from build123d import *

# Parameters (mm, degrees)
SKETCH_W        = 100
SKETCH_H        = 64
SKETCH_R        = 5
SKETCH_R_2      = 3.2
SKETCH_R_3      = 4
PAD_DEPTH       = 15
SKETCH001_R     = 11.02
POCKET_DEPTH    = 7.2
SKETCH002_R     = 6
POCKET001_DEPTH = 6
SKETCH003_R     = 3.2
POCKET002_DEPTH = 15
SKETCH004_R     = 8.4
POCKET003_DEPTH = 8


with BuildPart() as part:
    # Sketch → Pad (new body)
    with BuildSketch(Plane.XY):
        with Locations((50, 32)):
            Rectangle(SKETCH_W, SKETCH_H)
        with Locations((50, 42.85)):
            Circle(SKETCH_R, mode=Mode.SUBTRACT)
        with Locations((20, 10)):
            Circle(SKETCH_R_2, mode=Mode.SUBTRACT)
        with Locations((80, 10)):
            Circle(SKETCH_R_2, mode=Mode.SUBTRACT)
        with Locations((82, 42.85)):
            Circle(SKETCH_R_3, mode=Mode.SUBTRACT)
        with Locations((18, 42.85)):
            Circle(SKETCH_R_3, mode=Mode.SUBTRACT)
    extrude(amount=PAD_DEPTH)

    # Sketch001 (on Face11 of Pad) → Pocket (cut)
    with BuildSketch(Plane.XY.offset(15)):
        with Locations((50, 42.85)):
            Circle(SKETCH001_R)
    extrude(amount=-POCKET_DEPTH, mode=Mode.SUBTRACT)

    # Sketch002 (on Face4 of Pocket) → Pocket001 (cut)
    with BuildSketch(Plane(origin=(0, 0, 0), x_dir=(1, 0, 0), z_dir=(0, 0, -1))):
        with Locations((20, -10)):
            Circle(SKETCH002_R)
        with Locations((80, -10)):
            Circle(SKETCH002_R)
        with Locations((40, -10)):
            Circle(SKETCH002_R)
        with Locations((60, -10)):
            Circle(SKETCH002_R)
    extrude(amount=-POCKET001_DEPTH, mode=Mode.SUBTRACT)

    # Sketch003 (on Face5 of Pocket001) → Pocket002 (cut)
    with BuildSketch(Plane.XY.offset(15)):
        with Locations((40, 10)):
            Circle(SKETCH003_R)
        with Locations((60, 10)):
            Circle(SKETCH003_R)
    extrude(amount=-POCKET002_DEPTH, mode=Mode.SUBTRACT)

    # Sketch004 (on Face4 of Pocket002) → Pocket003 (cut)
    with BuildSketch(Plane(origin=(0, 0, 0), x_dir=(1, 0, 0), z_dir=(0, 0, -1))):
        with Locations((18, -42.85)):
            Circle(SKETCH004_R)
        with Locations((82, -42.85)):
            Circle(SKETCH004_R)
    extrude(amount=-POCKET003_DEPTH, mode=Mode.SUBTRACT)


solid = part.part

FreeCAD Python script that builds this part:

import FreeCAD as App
import Part
import Sketcher

V = App.Vector


def add_polygon(sketch, points):
    """Adds a closed chain of lines whose ends are joined by coincident constraints."""
    first, n = sketch.GeometryCount, len(points)
    for a, b in zip(points, points[1:] + points[:1]):
        sketch.addGeometry(Part.LineSegment(App.Vector(*a, 0), App.Vector(*b, 0)), False)
    for i in range(n):
        sketch.addConstraint(Sketcher.Constraint("Coincident", first + i, 2, first + (i + 1) % n, 1))

doc = App.newDocument("Part")
body = doc.addObject("PartDesign::Body", "Body")

# Sketch on XY plane
sketch1 = body.newObject("Sketcher::SketchObject", "Sketch")
sketch1.AttachmentSupport = (doc.getObject("XY_Plane"), [""])
sketch1.MapMode = "FlatFace"
add_polygon(sketch1, [(0, 64), (0, 0), (100, 0), (100, 64)])  # lines 0-3
sketch1.addGeometry(Part.Circle(V(20, 10, 0), V(0, 0, 1), 3.2), False)  # 4
sketch1.addGeometry(Part.Circle(V(80, 10, 0), V(0, 0, 1), 3.2), False)  # 5
sketch1.addGeometry(Part.Circle(V(18, 42.9, 0), V(0, 0, 1), 4), False)  # 6
sketch1.addGeometry(Part.Circle(V(50, 42.9, 0), V(0, 0, 1), 5), False)  # 7
sketch1.addGeometry(Part.Circle(V(82, 42.9, 0), V(0, 0, 1), 4), False)  # 8
sketch1.addConstraint([
    Sketcher.Constraint("Vertical", 0),
    Sketcher.Constraint("Horizontal", 1),
    Sketcher.Constraint("Vertical", 2),
    Sketcher.Constraint("Horizontal", 3),
    Sketcher.Constraint("Coincident", 0, 2, -1, 1),
    Sketcher.Constraint("Equal", 4, 5),
    Sketcher.Constraint("Equal", 6, 8),
    Sketcher.Constraint("Horizontal", 4, 3, 5, 3),
    Sketcher.Constraint("Horizontal", 6, 3, 7, 3),
    Sketcher.Constraint("Horizontal", 7, 3, 8, 3),
    Sketcher.Constraint("Diameter", 6, 8.0),
    Sketcher.Constraint("Diameter", 7, 10.0),
    Sketcher.Constraint("Diameter", 4, 6.4),
    Sketcher.Constraint("DistanceX", 1, 1, 1, 2, 100.0),
    Sketcher.Constraint("DistanceY", 0, 2, 0, 1, 64.0),
    Sketcher.Constraint("DistanceX", -1, 1, 4, 3, 20.0),
    Sketcher.Constraint("DistanceY", -1, 1, 4, 3, 10.0),
    Sketcher.Constraint("DistanceX", -1, 1, 5, 3, 80.0),
    Sketcher.Constraint("DistanceX", -1, 1, 6, 3, 18.0),
    Sketcher.Constraint("DistanceX", -1, 1, 7, 3, 50.0),
    Sketcher.Constraint("DistanceX", -1, 1, 8, 3, 82.0),
    Sketcher.Constraint("DistanceY", -1, 1, 6, 3, 42.85),
])
pad1 = body.newObject("PartDesign::Pad", "Pad")
pad1.Profile = sketch1
pad1.Length = 15

# Sketch on XY plane
sketch2 = body.newObject("Sketcher::SketchObject", "Sketch001")
sketch2.AttachmentSupport = (doc.getObject("XY_Plane"), [""])
sketch2.MapMode = "FlatFace"
sketch2.AttachmentOffset = App.Placement(V(0, 0, 15), App.Rotation())
sketch2.addGeometry(Part.Circle(V(50, 43, 0), V(0, 0, 1), 11), False)
sketch2.addConstraint([
    Sketcher.Constraint("Diameter", 0, 22.04),
    Sketcher.Constraint("DistanceX", -1, 1, 0, 3, 50.0),
    Sketcher.Constraint("DistanceY", -1, 1, 0, 3, 42.85),
])
pocket1 = body.newObject("PartDesign::Pocket", "Pocket")
pocket1.Profile = sketch2
pocket1.Length = 7.2

# Sketch on XY plane
sketch3 = body.newObject("Sketcher::SketchObject", "Sketch002")
sketch3.AttachmentSupport = (doc.getObject("XY_Plane"), [""])
sketch3.MapMode = "FlatFace"
sketch3.addGeometry([
    Part.Circle(V(20, 10, 0), V(0, 0, 1), 6),
    Part.Circle(V(80, 10, 0), V(0, 0, 1), 6),
    Part.Circle(V(40, 10, 0), V(0, 0, 1), 6),
    Part.Circle(V(60, 10, 0), V(0, 0, 1), 6),
], False)
sketch3.addConstraint([
    Sketcher.Constraint("Equal", 0, 1),
    Sketcher.Constraint("Equal", 1, 2),
    Sketcher.Constraint("Equal", 2, 3),
    Sketcher.Constraint("Horizontal", 0, 3, 1, 3),
    Sketcher.Constraint("Horizontal", 1, 3, 2, 3),
    Sketcher.Constraint("Horizontal", 2, 3, 3, 3),
    Sketcher.Constraint("Diameter", 0, 12.0),
    Sketcher.Constraint("DistanceX", -1, 1, 0, 3, 20.0),
    Sketcher.Constraint("DistanceY", -1, 1, 0, 3, 10.0),
    Sketcher.Constraint("DistanceX", -1, 1, 1, 3, 80.0),
    Sketcher.Constraint("DistanceX", -1, 1, 2, 3, 40.0),
    Sketcher.Constraint("DistanceX", -1, 1, 3, 3, 60.0),
])
pocket2 = body.newObject("PartDesign::Pocket", "Pocket001")
pocket2.Profile = sketch3
pocket2.Length = 6
pocket2.Reversed = True

# Sketch on XY plane
sketch4 = body.newObject("Sketcher::SketchObject", "Sketch003")
sketch4.AttachmentSupport = (doc.getObject("XY_Plane"), [""])
sketch4.MapMode = "FlatFace"
sketch4.AttachmentOffset = App.Placement(V(0, 0, 15), App.Rotation())
sketch4.addGeometry([
    Part.Circle(V(40, 10, 0), V(0, 0, 1), 3.2),
    Part.Circle(V(60, 10, 0), V(0, 0, 1), 3.2),
], False)
sketch4.addConstraint([
    Sketcher.Constraint("Equal", 0, 1),
    Sketcher.Constraint("Horizontal", 0, 3, 1, 3),
    Sketcher.Constraint("Diameter", 0, 6.4),
    Sketcher.Constraint("DistanceX", -1, 1, 0, 3, 40.0),
    Sketcher.Constraint("DistanceY", -1, 1, 0, 3, 10.0),
    Sketcher.Constraint("DistanceX", -1, 1, 1, 3, 60.0),
])
pocket3 = body.newObject("PartDesign::Pocket", "Pocket002")
pocket3.Profile = sketch4
pocket3.Length = 15

# Sketch on XY plane
sketch5 = body.newObject("Sketcher::SketchObject", "Sketch004")
sketch5.AttachmentSupport = (doc.getObject("XY_Plane"), [""])
sketch5.MapMode = "FlatFace"
sketch5.addGeometry([
    Part.Circle(V(18, 43, 0), V(0, 0, 1), 8),
    Part.Circle(V(82, 43, 0), V(0, 0, 1), 8),
], False)
sketch5.addConstraint([
    Sketcher.Constraint("Equal", 0, 1),
    Sketcher.Constraint("Horizontal", 0, 3, 1, 3),
    Sketcher.Constraint("Diameter", 0, 16.8),
    Sketcher.Constraint("DistanceX", -1, 1, 0, 3, 18.0),
    Sketcher.Constraint("DistanceX", -1, 1, 1, 3, 82.0),
    Sketcher.Constraint("DistanceY", -1, 1, 0, 3, 42.85),
])
pocket4 = body.newObject("PartDesign::Pocket", "Pocket003")
pocket4.Profile = sketch5
pocket4.Length = 8
pocket4.Reversed = True

doc.recompute()
